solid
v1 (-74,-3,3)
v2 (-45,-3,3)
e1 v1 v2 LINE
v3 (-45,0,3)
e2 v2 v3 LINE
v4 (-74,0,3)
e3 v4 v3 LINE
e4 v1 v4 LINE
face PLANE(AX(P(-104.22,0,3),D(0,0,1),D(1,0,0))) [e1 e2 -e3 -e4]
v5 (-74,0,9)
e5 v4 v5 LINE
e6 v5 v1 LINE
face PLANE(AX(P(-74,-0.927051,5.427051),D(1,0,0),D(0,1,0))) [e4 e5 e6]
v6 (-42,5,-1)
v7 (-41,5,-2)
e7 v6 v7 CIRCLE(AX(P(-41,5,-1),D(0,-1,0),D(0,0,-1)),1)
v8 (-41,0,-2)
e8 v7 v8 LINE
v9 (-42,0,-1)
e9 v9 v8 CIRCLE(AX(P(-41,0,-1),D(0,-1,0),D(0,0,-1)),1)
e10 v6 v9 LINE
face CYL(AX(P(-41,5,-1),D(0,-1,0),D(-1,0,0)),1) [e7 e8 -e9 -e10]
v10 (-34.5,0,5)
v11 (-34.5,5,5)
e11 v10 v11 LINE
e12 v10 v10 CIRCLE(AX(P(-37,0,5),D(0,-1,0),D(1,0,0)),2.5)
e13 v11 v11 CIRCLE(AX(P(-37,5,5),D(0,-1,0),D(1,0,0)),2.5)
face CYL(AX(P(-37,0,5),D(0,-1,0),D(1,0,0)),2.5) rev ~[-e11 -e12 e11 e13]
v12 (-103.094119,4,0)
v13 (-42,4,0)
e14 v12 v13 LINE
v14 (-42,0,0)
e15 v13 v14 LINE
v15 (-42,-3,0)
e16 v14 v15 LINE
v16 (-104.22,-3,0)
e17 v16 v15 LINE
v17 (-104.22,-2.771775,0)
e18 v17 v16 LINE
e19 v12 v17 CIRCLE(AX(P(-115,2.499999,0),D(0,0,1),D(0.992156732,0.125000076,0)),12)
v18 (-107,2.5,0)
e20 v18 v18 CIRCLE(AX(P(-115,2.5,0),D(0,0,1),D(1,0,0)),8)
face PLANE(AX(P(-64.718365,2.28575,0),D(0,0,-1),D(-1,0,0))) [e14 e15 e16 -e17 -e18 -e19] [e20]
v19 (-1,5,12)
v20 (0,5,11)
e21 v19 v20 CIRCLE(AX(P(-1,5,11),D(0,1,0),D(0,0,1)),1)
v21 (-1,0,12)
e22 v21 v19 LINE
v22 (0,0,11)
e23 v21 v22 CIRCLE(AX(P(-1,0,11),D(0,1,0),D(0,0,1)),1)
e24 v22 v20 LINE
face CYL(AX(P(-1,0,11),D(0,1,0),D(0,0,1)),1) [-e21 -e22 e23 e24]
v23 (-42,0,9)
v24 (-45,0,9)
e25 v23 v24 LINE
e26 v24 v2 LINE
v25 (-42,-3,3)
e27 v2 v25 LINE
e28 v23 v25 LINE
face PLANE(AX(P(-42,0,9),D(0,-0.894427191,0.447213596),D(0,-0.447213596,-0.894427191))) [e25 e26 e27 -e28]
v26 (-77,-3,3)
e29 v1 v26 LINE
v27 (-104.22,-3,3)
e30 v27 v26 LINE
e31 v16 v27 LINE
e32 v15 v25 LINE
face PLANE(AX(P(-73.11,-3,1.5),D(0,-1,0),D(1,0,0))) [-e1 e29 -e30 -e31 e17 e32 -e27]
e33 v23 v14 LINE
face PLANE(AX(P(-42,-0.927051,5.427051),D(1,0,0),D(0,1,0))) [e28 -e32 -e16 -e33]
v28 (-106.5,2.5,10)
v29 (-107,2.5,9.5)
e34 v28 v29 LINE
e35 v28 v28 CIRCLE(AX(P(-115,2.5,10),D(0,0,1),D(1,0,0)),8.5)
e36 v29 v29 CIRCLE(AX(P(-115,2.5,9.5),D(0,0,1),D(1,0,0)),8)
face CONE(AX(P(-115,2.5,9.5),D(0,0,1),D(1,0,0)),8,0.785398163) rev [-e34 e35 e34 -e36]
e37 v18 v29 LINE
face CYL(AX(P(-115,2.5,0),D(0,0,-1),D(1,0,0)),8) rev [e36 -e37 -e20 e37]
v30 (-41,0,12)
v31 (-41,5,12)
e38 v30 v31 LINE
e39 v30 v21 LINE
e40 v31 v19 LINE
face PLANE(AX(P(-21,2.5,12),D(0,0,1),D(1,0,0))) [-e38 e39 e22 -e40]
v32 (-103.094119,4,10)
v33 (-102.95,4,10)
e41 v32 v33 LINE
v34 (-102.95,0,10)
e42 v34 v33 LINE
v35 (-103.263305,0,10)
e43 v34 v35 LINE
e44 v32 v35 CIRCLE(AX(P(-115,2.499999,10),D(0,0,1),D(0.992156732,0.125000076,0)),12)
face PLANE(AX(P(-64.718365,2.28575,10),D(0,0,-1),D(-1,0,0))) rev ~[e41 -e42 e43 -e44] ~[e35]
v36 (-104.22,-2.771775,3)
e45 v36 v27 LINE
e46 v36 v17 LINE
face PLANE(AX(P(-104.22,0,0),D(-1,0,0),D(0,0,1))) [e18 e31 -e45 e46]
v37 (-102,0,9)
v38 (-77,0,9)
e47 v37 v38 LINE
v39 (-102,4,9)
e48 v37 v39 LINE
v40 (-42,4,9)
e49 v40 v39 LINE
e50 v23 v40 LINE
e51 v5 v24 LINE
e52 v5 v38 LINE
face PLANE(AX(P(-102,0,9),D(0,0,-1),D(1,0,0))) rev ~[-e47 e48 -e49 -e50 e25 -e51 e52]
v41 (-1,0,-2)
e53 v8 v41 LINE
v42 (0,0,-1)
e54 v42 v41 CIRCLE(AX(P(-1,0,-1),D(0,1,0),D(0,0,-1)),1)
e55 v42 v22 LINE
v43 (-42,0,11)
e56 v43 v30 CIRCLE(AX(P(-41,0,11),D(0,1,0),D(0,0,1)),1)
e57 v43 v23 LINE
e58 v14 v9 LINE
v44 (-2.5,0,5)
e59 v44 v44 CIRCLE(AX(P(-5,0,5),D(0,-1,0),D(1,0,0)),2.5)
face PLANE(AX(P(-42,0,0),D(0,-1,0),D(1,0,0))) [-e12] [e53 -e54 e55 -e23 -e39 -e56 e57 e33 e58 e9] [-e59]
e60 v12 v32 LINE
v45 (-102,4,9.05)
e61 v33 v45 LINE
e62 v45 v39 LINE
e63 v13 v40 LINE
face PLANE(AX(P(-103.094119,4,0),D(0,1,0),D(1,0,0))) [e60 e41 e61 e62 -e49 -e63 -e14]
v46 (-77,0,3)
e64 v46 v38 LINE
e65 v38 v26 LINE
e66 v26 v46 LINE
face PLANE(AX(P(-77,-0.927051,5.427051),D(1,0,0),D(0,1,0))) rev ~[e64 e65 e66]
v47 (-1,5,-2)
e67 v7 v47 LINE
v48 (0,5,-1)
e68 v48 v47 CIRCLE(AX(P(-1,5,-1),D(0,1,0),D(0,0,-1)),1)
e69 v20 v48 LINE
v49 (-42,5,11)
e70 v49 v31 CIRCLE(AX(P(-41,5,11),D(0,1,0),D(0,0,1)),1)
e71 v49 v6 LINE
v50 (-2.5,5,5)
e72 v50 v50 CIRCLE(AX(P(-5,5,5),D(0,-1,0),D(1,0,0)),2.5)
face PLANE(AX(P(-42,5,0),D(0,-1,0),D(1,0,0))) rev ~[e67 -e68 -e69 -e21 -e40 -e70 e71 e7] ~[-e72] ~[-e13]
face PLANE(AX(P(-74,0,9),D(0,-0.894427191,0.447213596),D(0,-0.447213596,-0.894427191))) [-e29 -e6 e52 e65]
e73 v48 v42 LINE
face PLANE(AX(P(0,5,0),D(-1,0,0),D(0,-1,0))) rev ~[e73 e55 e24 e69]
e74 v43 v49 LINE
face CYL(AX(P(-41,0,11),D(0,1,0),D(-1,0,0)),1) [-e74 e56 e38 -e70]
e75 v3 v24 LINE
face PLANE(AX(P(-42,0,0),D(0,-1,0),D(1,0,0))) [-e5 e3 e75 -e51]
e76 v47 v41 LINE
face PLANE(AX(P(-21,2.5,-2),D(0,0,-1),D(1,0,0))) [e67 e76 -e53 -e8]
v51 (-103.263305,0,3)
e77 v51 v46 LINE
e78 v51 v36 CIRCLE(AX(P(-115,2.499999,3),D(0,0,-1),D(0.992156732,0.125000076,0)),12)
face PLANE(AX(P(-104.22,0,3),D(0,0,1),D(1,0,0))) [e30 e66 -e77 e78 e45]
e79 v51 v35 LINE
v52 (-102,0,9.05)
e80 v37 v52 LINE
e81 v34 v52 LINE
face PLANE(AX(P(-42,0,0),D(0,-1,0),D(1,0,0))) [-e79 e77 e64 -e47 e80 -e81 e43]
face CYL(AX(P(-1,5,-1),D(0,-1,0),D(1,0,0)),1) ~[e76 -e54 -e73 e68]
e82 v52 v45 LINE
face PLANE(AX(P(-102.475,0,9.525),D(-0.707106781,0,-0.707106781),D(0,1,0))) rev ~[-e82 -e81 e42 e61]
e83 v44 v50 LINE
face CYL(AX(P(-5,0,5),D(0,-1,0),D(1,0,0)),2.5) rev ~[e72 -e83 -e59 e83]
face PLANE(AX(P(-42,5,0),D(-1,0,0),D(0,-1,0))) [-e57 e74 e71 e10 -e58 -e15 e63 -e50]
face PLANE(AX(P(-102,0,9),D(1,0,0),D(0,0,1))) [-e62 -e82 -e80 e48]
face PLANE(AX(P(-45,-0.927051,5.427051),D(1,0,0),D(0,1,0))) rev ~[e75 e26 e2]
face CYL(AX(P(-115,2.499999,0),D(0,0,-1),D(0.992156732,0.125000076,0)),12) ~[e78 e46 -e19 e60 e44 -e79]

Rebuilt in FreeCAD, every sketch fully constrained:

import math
import FreeCAD as App
import Part
import Sketcher
from FreeCAD import Vector


def edges_at(feature, points):
    """Names of the edges that pass closest to the given points."""
    edges = feature.Shape.Edges
    near = lambda p: min(range(len(edges)), key=lambda i: edges[i].distToShape(Part.Vertex(*p))[0])
    return sorted({f"Edge{near(p) + 1}" for p in points})

doc = App.newDocument("Part")
body = doc.addObject("PartDesign::Body", "Body")

sketch1 = body.newObject("Sketcher::SketchObject", "Sketch")
sketch1.AttachmentSupport = (doc.getObject("XY_Plane"), [""])
sketch1.MapMode = "FlatFace"
sketch1.addGeometry([
    Part.LineSegment(Vector(-103.263305, 0, 0), Vector(0, 0, 0)),
    Part.LineSegment(Vector(0, 0, 0), Vector(0, 5, 0)),
    Part.LineSegment(Vector(0, 5, 0), Vector(-42, 5, 0)),
    Part.LineSegment(Vector(-42, 5, 0), Vector(-42, 4, 0)),
    Part.LineSegment(Vector(-42, 4, 0), Vector(-103.094119, 4, 0)),
    Part.ArcOfCircle(Part.Circle(Vector(-115, 2.499999, 0), Vector(0, 0, 1), 12), math.radians(7.18076), math.radians(347.975305)),
    Part.Circle(Vector(-115, 2.5, 0), Vector(0, 0, 1), 8),
], False)
sketch1.addConstraint([
    Sketcher.Constraint("Coincident", 0, 2, 1, 1),
    Sketcher.Constraint("Coincident", 1, 2, 2, 1),
    Sketcher.Constraint("Coincident", 2, 2, 3, 1),
    Sketcher.Constraint("Coincident", 3, 2, 4, 1),
    Sketcher.Constraint("Coincident", 4, 2, 5, 1),
    Sketcher.Constraint("Coincident", 5, 2, 0, 1),
    Sketcher.Constraint("Horizontal", 0),
    Sketcher.Constraint("Vertical", 1),
    Sketcher.Constraint("Horizontal", 2),
    Sketcher.Constraint("Vertical", 3),
    Sketcher.Constraint("Horizontal", 4),
    Sketcher.Constraint("Coincident", 0, 2, -1, 1),
    Sketcher.Constraint("Coincident", 6, 3, 5, 3),
    Sketcher.Constraint("Diameter", 6, 16.0),
    Sketcher.Constraint("Radius", 5, 12.0),
    Sketcher.Constraint("DistanceX", 2, 2, 2, 1, 42.0),
    Sketcher.Constraint("DistanceY", 1, 1, 1, 2, 5.0),
    Sketcher.Constraint("DistanceY", 3, 2, 3, 1, 1.0),
    Sketcher.Constraint("DistanceX", 5, 3, -1, 1, 115.0),
    Sketcher.Constraint("DistanceY", -1, 1, 5, 3, 2.499999),
])
pad1 = body.newObject("PartDesign::Pad", "Pad")
pad1.Profile = sketch1
pad1.Length = 10

sketch2 = body.newObject("Sketcher::SketchObject", "Sketch001")
sketch2.AttachmentSupport = (doc.getObject("XZ_Plane"), [""])
sketch2.MapMode = "FlatFace"
sketch2.addGeometry([
    Part.Circle(Vector(-37, 5, 0), Vector(0, 0, 1), 2.5),
    Part.Circle(Vector(-5, 5, 0), Vector(0, 0, 1), 2.5),
], False)
sketch2.addConstraint([
    Sketcher.Constraint("Equal", 0, 1),
    Sketcher.Constraint("Horizontal", 0, 3, 1, 3),
    Sketcher.Constraint("Diameter", 0, 5.0),
    Sketcher.Constraint("DistanceX", 0, 3, -1, 1, 37.0),
    Sketcher.Constraint("DistanceY", -1, 1, 0, 3, 5.0),
    Sketcher.Constraint("DistanceX", 1, 3, -1, 1, 5.0),
])
pocket1 = body.newObject("PartDesign::Pocket", "Pocket")
pocket1.Profile = sketch2
pocket1.Type = "ThroughAll"

sketch3 = body.newObject("Sketcher::SketchObject", "Sketch002")
sketch3.AttachmentSupport = (doc.getObject("XY_Plane"), [""])
sketch3.MapMode = "FlatFace"
sketch3.AttachmentOffset = App.Placement(Vector(0, 0, 10), App.Rotation())
sketch3.addGeometry([
    Part.LineSegment(Vector(-42, 5, 0), Vector(-42, 0, 0)),
    Part.LineSegment(Vector(-42, 0, 0), Vector(0, 0, 0)),
    Part.LineSegment(Vector(0, 0, 0), Vector(0, 5, 0)),
    Part.LineSegment(Vector(0, 5, 0), Vector(-42, 5, 0)),
], False)
sketch3.addConstraint([
    Sketcher.Constraint("Coincident", 0, 2, 1, 1),
    Sketcher.Constraint("Coincident", 1, 2, 2, 1),
    Sketcher.Constraint("Coincident", 2, 2, 3, 1),
    Sketcher.Constraint("Coincident", 3, 2, 0, 1),
    Sketcher.Constraint("Vertical", 0),
    Sketcher.Constraint("Horizontal", 1),
    Sketcher.Constraint("Vertical", 2),
    Sketcher.Constraint("Horizontal", 3),
    Sketcher.Constraint("Coincident", 1, 2, -1, 1),
    Sketcher.Constraint("DistanceX", 1, 1, 1, 2, 42.0),
    Sketcher.Constraint("DistanceY", 0, 2, 0, 1, 5.0),
])
pad2 = body.newObject("PartDesign::Pad", "Pad001")
pad2.Profile = sketch3
pad2.Length = 2

sketch4 = body.newObject("Sketcher::SketchObject", "Sketch003")
sketch4.AttachmentSupport = (doc.getObject("XY_Plane"), [""])
sketch4.MapMode = "FlatFace"
sketch4.addGeometry([
    Part.LineSegment(Vector(-42, 0, 0), Vector(-42, 5, 0)),
    Part.LineSegment(Vector(-42, 5, 0), Vector(0, 5, 0)),
    Part.LineSegment(Vector(0, 5, 0), Vector(0, 0, 0)),
    Part.LineSegment(Vector(0, 0, 0), Vector(-42, 0, 0)),
], False)
sketch4.addConstraint([
    Sketcher.Constraint("Coincident", 0, 2, 1, 1),
    Sketcher.Constraint("Coincident", 1, 2, 2, 1),
    Sketcher.Constraint("Coincident", 2, 2, 3, 1),
    Sketcher.Constraint("Coincident", 3, 2, 0, 1),
    Sketcher.Constraint("Vertical", 0),
    Sketcher.Constraint("Horizontal", 1),
    Sketcher.Constraint("Vertical", 2),
    Sketcher.Constraint("Horizontal", 3),
    Sketcher.Constraint("Coincident", 2, 2, -1, 1),
    Sketcher.Constraint("DistanceX", 1, 1, 1, 2, 42.0),
    Sketcher.Constraint("DistanceY", 0, 1, 0, 2, 5.0),
])
pad3 = body.newObject("PartDesign::Pad", "Pad002")
pad3.Profile = sketch4
pad3.Length = 2
pad3.Reversed = True

sketch5 = body.newObject("Sketcher::SketchObject", "Sketch004")
sketch5.AttachmentSupport = (doc.getObject("XZ_Plane"), [""])
sketch5.MapMode = "FlatFace"
sketch5.addGeometry([
    Part.LineSegment(Vector(-104.22, 3, 0), Vector(-104.22, 0, 0)),
    Part.LineSegment(Vector(-104.22, 0, 0), Vector(-42, 0, 0)),
    Part.LineSegment(Vector(-42, 0, 0), Vector(-42, 3, 0)),
    Part.LineSegment(Vector(-42, 3, 0), Vector(-104.22, 3, 0)),
], False)
sketch5.addConstraint([
    Sketcher.Constraint("Coincident", 0, 2, 1, 1),
    Sketcher.Constraint("Coincident", 1, 2, 2, 1),
    Sketcher.Constraint("Coincident", 2, 2, 3, 1),
    Sketcher.Constraint("Coincident", 3, 2, 0, 1),
    Sketcher.Constraint("Vertical", 0),
    Sketcher.Constraint("Horizontal", 1),
    Sketcher.Constraint("Vertical", 2),
    Sketcher.Constraint("Horizontal", 3),
    Sketcher.Constraint("PointOnObject", 0, 2, -1),
    Sketcher.Constraint("DistanceY", 0, 2, 0, 1, 3.0),
    Sketcher.Constraint("DistanceX", 1, 2, -1, 1, 42.0),
    Sketcher.Constraint("DistanceX", 1, 1, 1, 2, 62.22),
])
pad4 = body.newObject("PartDesign::Pad", "Pad003")
pad4.Profile = sketch5
pad4.Length = 3

sketch6 = body.newObject("Sketcher::SketchObject", "Sketch005")
sketch6.AttachmentSupport = (doc.getObject("YZ_Plane"), [""])
sketch6.MapMode = "FlatFace"
sketch6.AttachmentOffset = App.Placement(Vector(0, 0, -42), App.Rotation())
sketch6.addGeometry([
    Part.LineSegment(Vector(-3, 3, 0), Vector(0, 3, 0)),
    Part.LineSegment(Vector(0, 3, 0), Vector(0, 9, 0)),
    Part.LineSegment(Vector(0, 9, 0), Vector(-3, 3, 0)),
], False)
sketch6.addConstraint([
    Sketcher.Constraint("Coincident", 0, 2, 1, 1),
    Sketcher.Constraint("Coincident", 1, 2, 2, 1),
    Sketcher.Constraint("Coincident", 2, 2, 0, 1),
    Sketcher.Constraint("Horizontal", 0),
    Sketcher.Constraint("Vertical", 1),
    Sketcher.Constraint("PointOnObject", 0, 2, -2),
    Sketcher.Constraint("DistanceX", 0, 1, 0, 2, 3.0),
    Sketcher.Constraint("DistanceY", 1, 1, 1, 2, 6.0),
    Sketcher.Constraint("DistanceY", -1, 1, 0, 2, 3.0),
])
pad5 = body.newObject("PartDesign::Pad", "Pad004")
pad5.Profile = sketch6
pad5.Length = 3
pad5.Reversed = True

sketch7 = body.newObject("Sketcher::SketchObject", "Sketch006")
sketch7.AttachmentSupport = (doc.getObject("YZ_Plane"), [""])
sketch7.MapMode = "FlatFace"
sketch7.AttachmentOffset = App.Placement(Vector(0, 0, -74), App.Rotation())
sketch7.addGeometry([
    Part.LineSegment(Vector(-3, 3, 0), Vector(0, 3, 0)),
    Part.LineSegment(Vector(0, 3, 0), Vector(0, 9, 0)),
    Part.LineSegment(Vector(0, 9, 0), Vector(-3, 3, 0)),
], False)
sketch7.addConstraint([
    Sketcher.Constraint("Coincident", 0, 2, 1, 1),
    Sketcher.Constraint("Coincident", 1, 2, 2, 1),
    Sketcher.Constraint("Coincident", 2, 2, 0, 1),
    Sketcher.Constraint("Horizontal", 0),
    Sketcher.Constraint("Vertical", 1),
    Sketcher.Constraint("PointOnObject", 0, 2, -2),
    Sketcher.Constraint("DistanceX", 0, 1, 0, 2, 3.0),
    Sketcher.Constraint("DistanceY", 1, 1, 1, 2, 6.0),
    Sketcher.Constraint("DistanceY", -1, 1, 0, 2, 3.0),
])
pad6 = body.newObject("PartDesign::Pad", "Pad005")
pad6.Profile = sketch7
pad6.Length = 3
pad6.Reversed = True
doc.recompute()

fillet = body.newObject("PartDesign::Fillet", "Fillet")
fillet.Base = (pad6, edges_at(pad6, [
    (0, 2.5, -2),
    (0, 2.5, 12),
    (-42, 2.5, 12),
    (-42, 2.5, -2),
]))
fillet.Radius = 1

sketch8 = body.newObject("Sketcher::SketchObject", "Sketch007")
sketch8.AttachmentSupport = (doc.getObject("XZ_Plane"), [""])
sketch8.MapMode = "FlatFace"
sketch8.addGeometry([
    Part.LineSegment(Vector(-102, 10, 0), Vector(-102, 9, 0)),
    Part.LineSegment(Vector(-102, 9, 0), Vector(-42, 9, 0)),
    Part.LineSegment(Vector(-42, 9, 0), Vector(-42, 10, 0)),
    Part.LineSegment(Vector(-42, 10, 0), Vector(-102, 10, 0)),
], False)
sketch8.addConstraint([
    Sketcher.Constraint("Coincident", 0, 2, 1, 1),
    Sketcher.Constraint("Coincident", 1, 2, 2, 1),
    Sketcher.Constraint("Coincident", 2, 2, 3, 1),
    Sketcher.Constraint("Coincident", 3, 2, 0, 1),
    Sketcher.Constraint("Vertical", 0),
    Sketcher.Constraint("Horizontal", 1),
    Sketcher.Constraint("Vertical", 2),
    Sketcher.Constraint("Horizontal", 3),
    Sketcher.Constraint("DistanceX", 1, 1, 1, 2, 60.0),
    Sketcher.Constraint("DistanceY", 0, 2, 0, 1, 1.0),
    Sketcher.Constraint("DistanceX", 0, 2, -1, 1, 102.0),
    Sketcher.Constraint("DistanceY", -1, 1, 0, 2, 9.0),
])
pocket2 = body.newObject("PartDesign::Pocket", "Pocket001")
pocket2.Profile = sketch8
pocket2.Type = "ThroughAll"
doc.recompute()

chamfer = body.newObject("PartDesign::Chamfer", "Chamfer")
chamfer.Base = (pocket2, edges_at(pocket2, [(-102, 2, 10)]))
chamfer.Size = 0.95
doc.recompute()

chamfer2 = body.newObject("PartDesign::Chamfer", "Chamfer001")
chamfer2.Base = (chamfer, edges_at(chamfer, [(-123, 2.5, 10)]))
chamfer2.Size = 0.5

doc.recompute()
